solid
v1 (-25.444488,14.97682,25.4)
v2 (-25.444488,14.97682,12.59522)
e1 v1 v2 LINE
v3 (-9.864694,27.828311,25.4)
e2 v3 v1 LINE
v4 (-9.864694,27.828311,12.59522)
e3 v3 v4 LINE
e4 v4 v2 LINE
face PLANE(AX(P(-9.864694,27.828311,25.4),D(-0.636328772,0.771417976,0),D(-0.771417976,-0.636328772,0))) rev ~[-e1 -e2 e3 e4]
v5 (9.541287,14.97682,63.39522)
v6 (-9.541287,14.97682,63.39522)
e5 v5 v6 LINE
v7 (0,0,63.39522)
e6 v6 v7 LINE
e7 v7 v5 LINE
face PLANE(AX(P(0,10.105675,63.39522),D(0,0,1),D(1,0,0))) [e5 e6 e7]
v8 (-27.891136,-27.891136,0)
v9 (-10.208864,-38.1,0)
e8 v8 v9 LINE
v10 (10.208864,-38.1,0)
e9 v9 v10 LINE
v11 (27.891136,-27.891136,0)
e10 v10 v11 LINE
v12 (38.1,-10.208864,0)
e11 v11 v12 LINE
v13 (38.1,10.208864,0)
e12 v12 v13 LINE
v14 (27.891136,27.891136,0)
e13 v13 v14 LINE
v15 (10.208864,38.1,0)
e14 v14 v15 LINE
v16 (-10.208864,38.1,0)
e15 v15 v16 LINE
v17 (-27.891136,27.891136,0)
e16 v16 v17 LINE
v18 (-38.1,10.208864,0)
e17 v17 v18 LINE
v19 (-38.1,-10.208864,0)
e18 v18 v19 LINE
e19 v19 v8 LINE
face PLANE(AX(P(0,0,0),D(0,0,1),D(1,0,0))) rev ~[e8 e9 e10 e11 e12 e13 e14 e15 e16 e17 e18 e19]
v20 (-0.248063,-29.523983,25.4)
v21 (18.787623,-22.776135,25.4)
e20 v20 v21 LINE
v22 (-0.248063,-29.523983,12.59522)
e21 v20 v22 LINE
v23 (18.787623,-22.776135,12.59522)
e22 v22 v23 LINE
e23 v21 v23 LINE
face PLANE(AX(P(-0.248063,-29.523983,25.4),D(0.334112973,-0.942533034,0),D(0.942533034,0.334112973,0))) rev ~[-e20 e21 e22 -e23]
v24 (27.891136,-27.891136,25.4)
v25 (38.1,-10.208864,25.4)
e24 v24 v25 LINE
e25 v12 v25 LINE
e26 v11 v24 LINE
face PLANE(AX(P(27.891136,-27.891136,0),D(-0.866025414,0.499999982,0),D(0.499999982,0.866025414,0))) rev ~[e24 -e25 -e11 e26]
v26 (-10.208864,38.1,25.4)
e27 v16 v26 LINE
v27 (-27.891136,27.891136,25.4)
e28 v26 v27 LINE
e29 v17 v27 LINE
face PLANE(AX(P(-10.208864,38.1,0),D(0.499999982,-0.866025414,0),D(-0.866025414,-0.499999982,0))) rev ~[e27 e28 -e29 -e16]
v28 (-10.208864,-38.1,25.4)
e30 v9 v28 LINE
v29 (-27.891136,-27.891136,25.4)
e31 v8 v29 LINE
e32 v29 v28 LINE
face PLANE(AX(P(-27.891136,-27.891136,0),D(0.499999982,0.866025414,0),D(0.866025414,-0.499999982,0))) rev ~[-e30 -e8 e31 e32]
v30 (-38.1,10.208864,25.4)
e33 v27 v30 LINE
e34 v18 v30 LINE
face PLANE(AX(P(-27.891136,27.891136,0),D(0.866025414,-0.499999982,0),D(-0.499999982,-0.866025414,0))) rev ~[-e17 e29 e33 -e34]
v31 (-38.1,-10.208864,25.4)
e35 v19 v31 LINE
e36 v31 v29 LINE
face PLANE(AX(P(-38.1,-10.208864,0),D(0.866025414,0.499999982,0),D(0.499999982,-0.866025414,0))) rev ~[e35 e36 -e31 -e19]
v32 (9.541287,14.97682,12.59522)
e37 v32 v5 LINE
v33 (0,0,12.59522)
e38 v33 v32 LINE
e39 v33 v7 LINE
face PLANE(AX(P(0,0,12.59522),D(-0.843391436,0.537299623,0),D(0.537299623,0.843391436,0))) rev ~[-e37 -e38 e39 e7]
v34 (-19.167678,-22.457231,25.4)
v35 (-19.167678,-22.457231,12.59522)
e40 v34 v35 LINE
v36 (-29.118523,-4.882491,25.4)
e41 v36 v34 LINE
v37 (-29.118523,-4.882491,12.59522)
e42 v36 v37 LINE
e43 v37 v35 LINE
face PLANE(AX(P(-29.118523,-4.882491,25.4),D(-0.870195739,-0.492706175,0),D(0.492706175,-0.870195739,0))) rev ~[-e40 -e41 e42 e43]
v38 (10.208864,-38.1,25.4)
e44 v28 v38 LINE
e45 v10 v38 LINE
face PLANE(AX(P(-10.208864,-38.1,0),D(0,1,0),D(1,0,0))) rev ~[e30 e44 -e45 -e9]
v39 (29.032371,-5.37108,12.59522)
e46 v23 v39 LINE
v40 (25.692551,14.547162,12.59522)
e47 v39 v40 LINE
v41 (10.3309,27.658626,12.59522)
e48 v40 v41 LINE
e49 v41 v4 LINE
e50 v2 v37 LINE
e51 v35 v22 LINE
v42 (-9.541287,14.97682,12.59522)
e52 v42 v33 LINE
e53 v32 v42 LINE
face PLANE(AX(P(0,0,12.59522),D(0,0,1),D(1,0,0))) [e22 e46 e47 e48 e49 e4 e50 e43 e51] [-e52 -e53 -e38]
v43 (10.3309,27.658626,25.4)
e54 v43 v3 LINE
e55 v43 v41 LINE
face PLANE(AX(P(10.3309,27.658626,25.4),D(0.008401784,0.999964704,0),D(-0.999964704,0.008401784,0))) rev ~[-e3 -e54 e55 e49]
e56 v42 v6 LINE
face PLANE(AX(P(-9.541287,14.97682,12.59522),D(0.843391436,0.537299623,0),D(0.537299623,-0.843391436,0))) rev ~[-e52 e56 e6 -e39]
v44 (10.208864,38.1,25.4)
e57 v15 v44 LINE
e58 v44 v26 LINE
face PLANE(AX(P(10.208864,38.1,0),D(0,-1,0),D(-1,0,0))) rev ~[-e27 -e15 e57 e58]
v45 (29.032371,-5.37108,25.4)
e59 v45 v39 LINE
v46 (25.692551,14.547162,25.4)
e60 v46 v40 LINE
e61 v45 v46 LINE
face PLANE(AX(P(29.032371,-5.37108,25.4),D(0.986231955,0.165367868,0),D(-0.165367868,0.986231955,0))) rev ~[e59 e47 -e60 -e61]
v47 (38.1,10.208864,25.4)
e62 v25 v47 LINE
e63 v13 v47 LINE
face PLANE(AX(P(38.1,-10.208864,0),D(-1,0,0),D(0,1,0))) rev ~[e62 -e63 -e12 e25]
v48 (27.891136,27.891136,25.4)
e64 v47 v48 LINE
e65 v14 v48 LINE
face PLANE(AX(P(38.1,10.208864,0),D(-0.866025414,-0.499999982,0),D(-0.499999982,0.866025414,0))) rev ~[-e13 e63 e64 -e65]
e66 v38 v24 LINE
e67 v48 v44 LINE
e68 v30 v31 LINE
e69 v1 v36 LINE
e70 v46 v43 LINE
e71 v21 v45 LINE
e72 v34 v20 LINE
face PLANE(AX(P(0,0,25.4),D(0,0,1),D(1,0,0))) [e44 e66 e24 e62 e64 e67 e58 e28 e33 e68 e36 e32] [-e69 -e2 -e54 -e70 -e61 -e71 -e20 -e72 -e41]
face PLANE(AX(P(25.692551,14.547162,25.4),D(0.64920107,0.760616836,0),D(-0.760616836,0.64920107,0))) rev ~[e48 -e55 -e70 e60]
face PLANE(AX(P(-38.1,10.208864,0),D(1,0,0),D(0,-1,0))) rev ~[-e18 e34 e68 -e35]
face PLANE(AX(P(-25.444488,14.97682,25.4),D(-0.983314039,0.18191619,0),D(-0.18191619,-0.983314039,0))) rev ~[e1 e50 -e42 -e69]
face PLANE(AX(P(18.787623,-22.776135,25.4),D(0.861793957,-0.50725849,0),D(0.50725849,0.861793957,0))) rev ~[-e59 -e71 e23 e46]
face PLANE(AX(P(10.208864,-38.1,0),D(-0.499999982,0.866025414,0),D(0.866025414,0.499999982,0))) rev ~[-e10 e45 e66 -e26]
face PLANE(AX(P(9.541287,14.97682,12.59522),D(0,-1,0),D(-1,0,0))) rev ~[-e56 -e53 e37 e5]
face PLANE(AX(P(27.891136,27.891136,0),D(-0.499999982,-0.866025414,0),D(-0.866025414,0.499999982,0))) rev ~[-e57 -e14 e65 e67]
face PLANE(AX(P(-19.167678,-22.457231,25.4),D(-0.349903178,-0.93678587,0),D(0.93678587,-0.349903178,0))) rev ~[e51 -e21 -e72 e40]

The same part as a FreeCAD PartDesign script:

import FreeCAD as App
import Part
import Sketcher
from FreeCAD import Vector
Q = App.Units.Quantity

doc = App.newDocument("Part")
body = doc.addObject("PartDesign::Body", "Body")

# Sketch on XY plane
sketch1 = body.newObject("Sketcher::SketchObject", "Sketch")
sketch1.AttachmentSupport = (doc.getObject("XY_Plane"), [""])
sketch1.MapMode = "FlatFace"
sketch1.addGeometry([
    Part.LineSegment(Vector(38, -10, 0), Vector(38, 10, 0)),  # 0
    Part.LineSegment(Vector(38, 10, 0), Vector(28, 28, 0)),  # 1
    Part.LineSegment(Vector(28, 28, 0), Vector(10, 38, 0)),  # 2
    Part.LineSegment(Vector(10, 38, 0), Vector(-10, 38, 0)),  # 3
    Part.LineSegment(Vector(-10, 38, 0), Vector(-28, 28, 0)),  # 4
    Part.LineSegment(Vector(-28, 28, 0), Vector(-38, 10, 0)),  # 5
    Part.LineSegment(Vector(-38, 10, 0), Vector(-38, -10, 0)),  # 6
    Part.LineSegment(Vector(-38, -10, 0), Vector(-28, -28, 0)),  # 7
    Part.LineSegment(Vector(-28, -28, 0), Vector(-10, -38, 0)),  # 8
    Part.LineSegment(Vector(-10, -38, 0), Vector(10, -38, 0)),  # 9
    Part.LineSegment(Vector(10, -38, 0), Vector(28, -28, 0)),  # 10
    Part.LineSegment(Vector(28, -28, 0), Vector(38, -10, 0)),  # 11
], False)
sketch1.addConstraint([
    Sketcher.Constraint("Coincident", 0, 2, 1, 1),
    Sketcher.Constraint("Coincident", 1, 2, 2, 1),
    Sketcher.Constraint("Coincident", 2, 2, 3, 1),
    Sketcher.Constraint("Coincident", 3, 2, 4, 1),
    Sketcher.Constraint("Coincident", 4, 2, 5, 1),
    Sketcher.Constraint("Coincident", 5, 2, 6, 1),
    Sketcher.Constraint("Coincident", 6, 2, 7, 1),
    Sketcher.Constraint("Coincident", 7, 2, 8, 1),
    Sketcher.Constraint("Coincident", 8, 2, 9, 1),
    Sketcher.Constraint("Coincident", 9, 2, 10, 1),
    Sketcher.Constraint("Coincident", 10, 2, 11, 1),
    Sketcher.Constraint("Coincident", 11, 2, 0, 1),
    Sketcher.Constraint("Vertical", 0),
    Sketcher.Constraint("Horizontal", 3),
    Sketcher.Constraint("Vertical", 6),
    Sketcher.Constraint("Horizontal", 9),
    Sketcher.Constraint("Symmetric", 0, 2, 6, 2, -1, 1),
    Sketcher.Constraint("Symmetric", 1, 2, 7, 2, -1, 1),
    Sketcher.Constraint("Symmetric", 2, 2, 8, 2, -1, 1),
    Sketcher.Constraint("Symmetric", 4, 2, 10, 2, -1, 1),
    Sketcher.Constraint("Symmetric", 1, 2, 4, 2, -2),
    Sketcher.Constraint("Perpendicular", 1, 4),
    Sketcher.Constraint("Perpendicular", 2, 5),
    Sketcher.Constraint("Perpendicular", 7, 10),
    Sketcher.Constraint("Perpendicular", 8, 11),
    Sketcher.Constraint("Horizontal", 0, 2, 5, 2),
    Sketcher.Constraint("Equal", 9, 0),
    Sketcher.Constraint("Equal", 1, 2),
    Sketcher.Constraint("Angle", 1, Q("119.999999 deg")),
    Sketcher.Constraint("DistanceX", 5, 2, 0, 2, Q("3 in")),
    Sketcher.Constraint("DistanceX", 3, 2, 1, 2, Q("1.5 in")),
])
pad1 = body.newObject("PartDesign::Pad", "Pad")
pad1.Profile = sketch1
pad1.Length = Q("1 in")

# Sketch on XY plane
sketch2 = body.newObject("Sketcher::SketchObject", "Sketch001")
sketch2.AttachmentSupport = (doc.getObject("XY_Plane"), [""])
sketch2.MapMode = "FlatFace"
sketch2.AttachmentOffset = App.Placement(Vector(0, 0, 1 * 25.4), App.Rotation())
sketch2.addGeometry([
    Part.LineSegment(Vector(19, -23, 0), Vector(29, -5, 0)),  # 0
    Part.LineSegment(Vector(29, -5, 0), Vector(26, 15, 0)),  # 1
    Part.LineSegment(Vector(26, 15, 0), Vector(10, 28, 0)),  # 2
    Part.LineSegment(Vector(10, 28, 0), Vector(-10, 28, 0)),  # 3
    Part.LineSegment(Vector(-10, 28, 0), Vector(-25, 15, 0)),  # 4
    Part.LineSegment(Vector(-25, 15, 0), Vector(-29, -5, 0)),  # 5
    Part.LineSegment(Vector(-29, -5, 0), Vector(-19, -22, 0)),  # 6
    Part.LineSegment(Vector(-19, -22, 0), Vector(0, -30, 0)),  # 7
    Part.LineSegment(Vector(0, -30, 0), Vector(19, -23, 0)),  # 8
], False)
sketch2.addConstraint([
    Sketcher.Constraint("Coincident", 0, 2, 1, 1),
    Sketcher.Constraint("Coincident", 1, 2, 2, 1),
    Sketcher.Constraint("Coincident", 2, 2, 3, 1),
    Sketcher.Constraint("Coincident", 3, 2, 4, 1),
    Sketcher.Constraint("Coincident", 4, 2, 5, 1),
    Sketcher.Constraint("Coincident", 5, 2, 6, 1),
    Sketcher.Constraint("Coincident", 6, 2, 7, 1),
    Sketcher.Constraint("Coincident", 7, 2, 8, 1),
    Sketcher.Constraint("Coincident", 8, 2, 0, 1),
    Sketcher.Constraint("Equal", 0, 1),
    Sketcher.Constraint("Equal", 1, 2),
    Sketcher.Constraint("Equal", 2, 3),
    Sketcher.Constraint("Equal", 3, 4),
    Sketcher.Constraint("Equal", 4, 5),
    Sketcher.Constraint("Equal", 5, 6),
    Sketcher.Constraint("Equal", 6, 7),
    Sketcher.Constraint("Equal", 7, 8),
    Sketcher.Constraint("DistanceY", 7, 2, 4, 2, Q("1.7520001 in")),
    Sketcher.Constraint("DistanceX", -1, 1, 2, 2, 10.3309),
    Sketcher.Constraint("DistanceY", 0, 2, 4, 2, 20.3479),
    Sketcher.Constraint("DistanceX", 6, 2, 8, 2, 37.955301),
    Sketcher.Constraint("DistanceX", -1, 1, 0, 2, 29.032371),
    Sketcher.Constraint("DistanceY", 0, 2, -1, 1, 5.37108),
    Sketcher.Constraint("DistanceX", -1, 1, 1, 2, 25.692551),
    Sketcher.Constraint("DistanceY", -1, 1, 3, 2, 27.828311),
    Sketcher.Constraint("DistanceX", 4, 2, -1, 1, 25.444488),
    Sketcher.Constraint("DistanceY", 6, 2, -1, 1, 22.457231),
])
pocket1 = body.newObject("PartDesign::Pocket", "Pocket")
pocket1.Profile = sketch2
pocket1.Length = 12.80478

# Sketch on XY plane
sketch3 = body.newObject("Sketcher::SketchObject", "Sketch002")
sketch3.AttachmentSupport = (doc.getObject("XY_Plane"), [""])
sketch3.MapMode = "FlatFace"
sketch3.AttachmentOffset = App.Placement(Vector(0, 0, 12.59522), App.Rotation())
sketch3.addGeometry([
    Part.LineSegment(Vector(-10, 15, 0), Vector(0, 0, 0)),
    Part.LineSegment(Vector(0, 0, 0), Vector(10, 15, 0)),
    Part.LineSegment(Vector(10, 15, 0), Vector(-10, 15, 0)),
], False)
sketch3.addConstraint([
    Sketcher.Constraint("Coincident", 0, 2, 1, 1),
    Sketcher.Constraint("Coincident", 1, 2, 2, 1),
    Sketcher.Constraint("Coincident", 2, 2, 0, 1),
    Sketcher.Constraint("Horizontal", 2),
    Sketcher.Constraint("Coincident", 0, 2, -1, 1),
    Sketcher.Constraint("Equal", 0, 1),
    Sketcher.Constraint("Angle", 0, Q("-57.499999 deg")),
    Sketcher.Constraint("Distance", 0, 17.757852),
])
pad2 = body.newObject("PartDesign::Pad", "Pad001")
pad2.Profile = sketch3
pad2.Length = Q("2 in")

doc.recompute()
